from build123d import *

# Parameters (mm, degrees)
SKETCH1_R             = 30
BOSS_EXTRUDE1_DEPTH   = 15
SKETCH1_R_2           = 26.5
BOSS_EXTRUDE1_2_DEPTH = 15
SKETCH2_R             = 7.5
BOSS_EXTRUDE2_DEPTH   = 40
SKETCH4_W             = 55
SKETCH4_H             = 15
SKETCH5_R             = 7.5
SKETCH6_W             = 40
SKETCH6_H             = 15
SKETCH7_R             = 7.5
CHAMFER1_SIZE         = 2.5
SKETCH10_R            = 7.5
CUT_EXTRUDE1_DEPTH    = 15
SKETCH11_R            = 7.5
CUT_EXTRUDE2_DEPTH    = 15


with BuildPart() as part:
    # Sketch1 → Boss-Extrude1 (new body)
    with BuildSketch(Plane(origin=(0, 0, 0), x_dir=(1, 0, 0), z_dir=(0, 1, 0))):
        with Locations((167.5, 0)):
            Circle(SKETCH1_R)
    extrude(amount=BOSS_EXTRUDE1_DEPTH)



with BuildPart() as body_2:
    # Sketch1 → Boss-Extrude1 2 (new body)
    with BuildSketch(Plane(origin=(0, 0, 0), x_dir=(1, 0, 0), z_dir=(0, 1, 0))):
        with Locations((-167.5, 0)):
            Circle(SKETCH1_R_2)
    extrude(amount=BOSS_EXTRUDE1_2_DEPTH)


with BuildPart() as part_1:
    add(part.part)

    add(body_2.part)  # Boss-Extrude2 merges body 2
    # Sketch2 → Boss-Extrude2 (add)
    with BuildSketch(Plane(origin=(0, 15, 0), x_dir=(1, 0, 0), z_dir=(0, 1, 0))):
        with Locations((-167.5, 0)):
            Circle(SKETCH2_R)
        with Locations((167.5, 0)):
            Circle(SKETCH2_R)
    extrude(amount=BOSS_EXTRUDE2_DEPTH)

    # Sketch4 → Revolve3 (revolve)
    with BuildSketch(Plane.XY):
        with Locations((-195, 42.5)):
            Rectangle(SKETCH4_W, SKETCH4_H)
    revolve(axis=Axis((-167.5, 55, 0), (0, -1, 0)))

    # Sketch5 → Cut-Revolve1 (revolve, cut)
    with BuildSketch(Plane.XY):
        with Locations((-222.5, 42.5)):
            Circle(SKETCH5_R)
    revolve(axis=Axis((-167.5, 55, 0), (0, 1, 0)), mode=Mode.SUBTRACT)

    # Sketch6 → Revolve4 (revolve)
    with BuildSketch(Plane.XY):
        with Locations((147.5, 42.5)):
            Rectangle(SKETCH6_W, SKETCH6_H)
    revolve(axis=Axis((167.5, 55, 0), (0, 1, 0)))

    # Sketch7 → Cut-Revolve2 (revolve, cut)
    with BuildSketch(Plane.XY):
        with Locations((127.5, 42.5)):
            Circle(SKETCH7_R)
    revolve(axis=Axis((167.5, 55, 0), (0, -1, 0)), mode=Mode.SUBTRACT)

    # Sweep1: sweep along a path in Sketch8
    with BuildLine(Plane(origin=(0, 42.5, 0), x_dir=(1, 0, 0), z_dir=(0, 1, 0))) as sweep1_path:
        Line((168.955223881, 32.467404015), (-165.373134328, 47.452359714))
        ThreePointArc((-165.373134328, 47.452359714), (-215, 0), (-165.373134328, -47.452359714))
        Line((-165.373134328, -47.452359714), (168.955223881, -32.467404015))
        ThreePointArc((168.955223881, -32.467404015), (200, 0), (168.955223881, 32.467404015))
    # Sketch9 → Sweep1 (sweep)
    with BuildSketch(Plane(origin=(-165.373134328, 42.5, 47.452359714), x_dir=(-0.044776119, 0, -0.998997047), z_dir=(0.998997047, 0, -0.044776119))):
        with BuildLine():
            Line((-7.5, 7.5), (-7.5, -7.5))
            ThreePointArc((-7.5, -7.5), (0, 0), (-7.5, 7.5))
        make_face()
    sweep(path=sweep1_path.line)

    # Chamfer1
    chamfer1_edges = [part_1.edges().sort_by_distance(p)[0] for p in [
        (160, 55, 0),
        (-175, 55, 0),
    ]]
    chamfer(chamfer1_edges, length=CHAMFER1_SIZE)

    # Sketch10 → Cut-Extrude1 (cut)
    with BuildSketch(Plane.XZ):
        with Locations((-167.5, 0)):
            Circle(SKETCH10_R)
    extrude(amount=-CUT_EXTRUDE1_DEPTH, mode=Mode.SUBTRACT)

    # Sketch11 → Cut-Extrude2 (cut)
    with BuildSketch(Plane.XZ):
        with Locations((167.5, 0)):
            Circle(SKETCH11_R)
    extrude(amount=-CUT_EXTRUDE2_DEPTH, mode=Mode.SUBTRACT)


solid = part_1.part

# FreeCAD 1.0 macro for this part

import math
import FreeCAD as App
import Part
import Sketcher

V = App.Vector
Q = App.Units.Quantity


def edges_at(feature, points):
    """Names of the edges that pass closest to the given points."""
    edges = feature.Shape.Edges
    near = lambda p: min(range(len(edges)), key=lambda i: edges[i].distToShape(Part.Vertex(*p))[0])
    return sorted({f"Edge{near(p) + 1}" for p in points})


def add_polygon(sketch, points):
    """Adds a closed chain of lines whose ends are joined by coincident constraints."""
    first, n = sketch.GeometryCount, len(points)
    for a, b in zip(points, points[1:] + points[:1]):
        sketch.addGeometry(Part.LineSegment(App.Vector(*a, 0), App.Vector(*b, 0)), False)
    for i in range(n):
        sketch.addConstraint(Sketcher.Constraint("Coincident", first + i, 2, first + (i + 1) % n, 1))

doc = App.newDocument("Part")
body = doc.addObject("PartDesign::Body", "Body")

# Sketch on XZ plane
sketch1 = doc.addObject("Sketcher::SketchObject", "Sketch")
body.addObject(sketch1)
sketch1.AttachmentSupport = (doc.XZ_Plane, [""])
sketch1.MapMode = "FlatFace"
sketch1.addGeometry(Part.Circle(V(168, 0, 0), V(0, 0, 1), 30), False)
sketch1.addConstraint([
    Sketcher.Constraint("PointOnObject", 0, 3, -1),
    Sketcher.Constraint("Diameter", 0, Q("60 mm")),
    Sketcher.Constraint("DistanceX", -1, 1, 0, 3, Q("167.5 mm")),
])
pad1 = doc.addObject("PartDesign::Pad", "Pad")
body.addObject(pad1)
pad1.Profile = sketch1
pad1.Length = 15
pad1.Reversed = True
body2 = doc.addObject("PartDesign::Body", "Body001")

# Sketch on XZ plane
sketch2 = doc.addObject("Sketcher::SketchObject", "Sketch001")
body2.addObject(sketch2)
sketch2.AttachmentSupport = (doc.getObject("XZ_Plane001"), [""])
sketch2.MapMode = "FlatFace"
sketch2.addGeometry(Part.Circle(V(-168, 0, 0), V(0, 0, 1), 26), False)
sketch2.addConstraint([
    Sketcher.Constraint("PointOnObject", 0, 3, -1),
    Sketcher.Constraint("Diameter", 0, Q("53 mm")),
    Sketcher.Constraint("DistanceX", 0, 3, -1, 1, Q("167.5 mm")),
])
pad2 = doc.addObject("PartDesign::Pad", "Pad001")
body2.addObject(pad2)
pad2.Profile = sketch2
pad2.Length = 15
pad2.Reversed = True
body.AllowCompound = True
doc.recompute()

boolean = doc.addObject("PartDesign::Boolean", "Boolean")
body.addObject(boolean)
boolean.Type = "Fuse"
boolean.addObjects([body2])

# Sketch on XZ plane
sketch3 = doc.addObject("Sketcher::SketchObject", "Sketch002")
body.addObject(sketch3)
sketch3.AttachmentSupport = (doc.XZ_Plane, [""])
sketch3.MapMode = "FlatFace"
sketch3.AttachmentOffset = App.Placement(V(0, 0, -15), App.Rotation())
sketch3.addGeometry([
    Part.Circle(V(-168, 0, 0), V(0, 0, 1), 8),
    Part.Circle(V(168, 0, 0), V(0, 0, 1), 8),
], False)
sketch3.addConstraint([
    Sketcher.Constraint("Equal", 0, 1),
    Sketcher.Constraint("Symmetric", 0, 3, 1, 3, -1, 1),
    Sketcher.Constraint("PointOnObject", 0, 3, -1),
    Sketcher.Constraint("Diameter", 0, Q("15 mm")),
    Sketcher.Constraint("DistanceX", 0, 3, 1, 3, Q("335 mm")),
])
pad3 = doc.addObject("PartDesign::Pad", "Pad002")
body.addObject(pad3)
pad3.Profile = sketch3
pad3.Length = 40
pad3.Reversed = True

# Sketch on XY plane
sketch4 = doc.addObject("Sketcher::SketchObject", "Sketch003")
body.addObject(sketch4)
sketch4.AttachmentSupport = (doc.XY_Plane, [""])
sketch4.MapMode = "FlatFace"
add_polygon(sketch4, [(-222, 50), (-222, 35), (-168, 35), (-168, 50)])  # lines 0-3
sketch4.addGeometry(Part.LineSegment(V(-168, 50, 0), V(-168, 35, 0)), True)  # axis
sketch4.addConstraint([
    Sketcher.Constraint("Vertical", 0),
    Sketcher.Constraint("Horizontal", 1),
    Sketcher.Constraint("Vertical", 2),
    Sketcher.Constraint("Horizontal", 3),
    Sketcher.Constraint("Vertical", 4),
    Sketcher.Constraint("Coincident", 4, 1, 2, 2),
    Sketcher.Constraint("Horizontal", 0, 2, 4, 2),
    Sketcher.Constraint("DistanceX", 1, 1, 1, 2, Q("55 mm")),
    Sketcher.Constraint("DistanceY", 0, 2, 0, 1, Q("15 mm")),
    Sketcher.Constraint("DistanceY", -1, 1, 0, 2, Q("35 mm")),
    Sketcher.Constraint("DistanceX", 0, 2, -1, 1, Q("222.5 mm")),
])
revolution = doc.addObject("PartDesign::Revolution", "Revolution")
body.addObject(revolution)
revolution.Profile = sketch4
revolution.ReferenceAxis = (sketch4, ["Axis0"])
revolution.Angle = 360

# Sketch on XY plane
sketch5 = doc.addObject("Sketcher::SketchObject", "Sketch004")
body.addObject(sketch5)
sketch5.AttachmentSupport = (doc.XY_Plane, [""])
sketch5.MapMode = "FlatFace"
sketch5.addGeometry(Part.Circle(V(-222, 42, 0), V(0, 0, 1), 8), False)
sketch5.addGeometry(Part.LineSegment(V(-168, 42, 0), V(-168, 52, 0)), True)  # axis
sketch5.addConstraint([
    Sketcher.Constraint("Vertical", 1),
    Sketcher.Constraint("Horizontal", 0, 3, 1, 1),
    Sketcher.Constraint("Diameter", 0, Q("15 mm")),
    Sketcher.Constraint("DistanceY", 1, 1, 1, 2, Q("10 mm")),
    Sketcher.Constraint("DistanceX", 0, 3, 1, 1, Q("55 mm")),
    Sketcher.Constraint("DistanceX", 0, 3, -1, 1, Q("222.5 mm")),
    Sketcher.Constraint("DistanceY", -1, 1, 0, 3, Q("42.5 mm")),
])
groove = doc.addObject("PartDesign::Groove", "Groove")
body.addObject(groove)
groove.Profile = sketch5
groove.ReferenceAxis = (sketch5, ["Axis0"])
groove.Angle = 360

# Sketch on XY plane
sketch6 = doc.addObject("Sketcher::SketchObject", "Sketch005")
body.addObject(sketch6)
sketch6.AttachmentSupport = (doc.XY_Plane, [""])
sketch6.MapMode = "FlatFace"
add_polygon(sketch6, [(128, 50), (128, 35), (168, 35), (168, 50)])  # lines 0-3
sketch6.addGeometry(Part.LineSegment(V(168, 35, 0), V(168, 50, 0)), True)  # axis
sketch6.addConstraint([
    Sketcher.Constraint("Vertical", 0),
    Sketcher.Constraint("Horizontal", 1),
    Sketcher.Constraint("Vertical", 2),
    Sketcher.Constraint("Horizontal", 3),
    Sketcher.Constraint("Vertical", 4),
    Sketcher.Constraint("Coincident", 4, 1, 1, 2),
    Sketcher.Constraint("Horizontal", 3, 2, 4, 2),
    Sketcher.Constraint("DistanceX", 1, 1, 1, 2, Q("40 mm")),
    Sketcher.Constraint("DistanceY", 0, 2, 0, 1, Q("15 mm")),
    Sketcher.Constraint("DistanceY", -1, 1, 0, 2, Q("35 mm")),
    Sketcher.Constraint("DistanceX", -1, 1, 0, 2, Q("127.5 mm")),
])
revolution2 = doc.addObject("PartDesign::Revolution", "Revolution001")
body.addObject(revolution2)
revolution2.Profile = sketch6
revolution2.ReferenceAxis = (sketch6, ["Axis0"])
revolution2.Angle = 360

# Sketch on XY plane
sketch7 = doc.addObject("Sketcher::SketchObject", "Sketch006")
body.addObject(sketch7)
sketch7.AttachmentSupport = (doc.XY_Plane, [""])
sketch7.MapMode = "FlatFace"
sketch7.addGeometry(Part.Circle(V(128, 42, 0), V(0, 0, 1), 8), False)
sketch7.addGeometry(Part.LineSegment(V(168, 42, 0), V(168, 32, 0)), True)  # axis
sketch7.addConstraint([
    Sketcher.Constraint("Vertical", 1),
    Sketcher.Constraint("Horizontal", 0, 3, 1, 1),
    Sketcher.Constraint("Diameter", 0, Q("15 mm")),
    Sketcher.Constraint("DistanceY", 1, 2, 1, 1, Q("10 mm")),
    Sketcher.Constraint("DistanceX", 0, 3, 1, 1, Q("40 mm")),
    Sketcher.Constraint("DistanceX", -1, 1, 0, 3, Q("127.5 mm")),
    Sketcher.Constraint("DistanceY", -1, 1, 0, 3, Q("42.5 mm")),
])
groove2 = doc.addObject("PartDesign::Groove", "Groove001")
body.addObject(groove2)
groove2.Profile = sketch7
groove2.ReferenceAxis = (sketch7, ["Axis0"])
groove2.Angle = 360

# Sketch on an angled plane
sketch8 = doc.addObject("Sketcher::SketchObject", "Sketch007")
body.addObject(sketch8)
sketch8.Placement = App.Placement(V(-165.373134, 42.5, 47.45236), App.Rotation(V(-0.044776119, 0, -0.998997047), V(0, 1.000000001, 0), V(0.998997047, 0, -0.044776119), "ZXY"))
sketch8.addGeometry([
    Part.LineSegment(V(-8, 8, 0), V(-8, -8, 0)),
    Part.ArcOfCircle(Part.Circle(V(-8, 0, 0), V(0, 0, 1), 8), math.radians(-90), math.radians(90)),
], False)
sketch8.addConstraint([
    Sketcher.Constraint("Coincident", 0, 1, 1, 2),
    Sketcher.Constraint("Coincident", 1, 1, 0, 2),
    Sketcher.Constraint("Vertical", 0),
    Sketcher.Constraint("PointOnObject", 1, 3, -1),
    Sketcher.Constraint("Vertical", 1, 3, 0, 1),
    Sketcher.Constraint("Radius", 1, Q("7.5 mm")),
    Sketcher.Constraint("DistanceX", 1, 3, -1, 1, Q("7.5 mm")),
])

# Sketch on XZ plane
sketch9 = doc.addObject("Sketcher::SketchObject", "Sketch008")
body.addObject(sketch9)
sketch9.AttachmentSupport = (doc.XZ_Plane, [""])
sketch9.MapMode = "FlatFace"
sketch9.AttachmentOffset = App.Placement(V(0, 0, -42.5), App.Rotation())
sketch9.addGeometry([
    Part.LineSegment(V(169, -32, 0), V(-165, -47, 0)),
    Part.ArcOfCircle(Part.Circle(V(-168, 0, 0), V(0, 0, 1), 48), math.radians(87), math.radians(273)),
    Part.LineSegment(V(-165, 47, 0), V(169, 32, 0)),
    Part.ArcOfCircle(Part.Circle(V(168, 0, 0), V(0, 0, 1), 32), math.radians(-87), math.radians(87)),
], False)
sketch9.addConstraint([
    Sketcher.Constraint("Tangent", 0, 2, 1, 2),
    Sketcher.Constraint("Tangent", 1, 1, 2, 1),
    Sketcher.Constraint("Tangent", 2, 2, 3, 2),
    Sketcher.Constraint("Tangent", 3, 1, 0, 1),
    Sketcher.Constraint("Symmetric", 1, 3, 3, 3, -1, 1),
    Sketcher.Constraint("PointOnObject", 1, 3, -1),
    Sketcher.Constraint("Radius", 1, Q("47.5 mm")),
    Sketcher.Constraint("Radius", 3, Q("32.5 mm")),
    Sketcher.Constraint("DistanceX", 1, 3, 3, 3, Q("335 mm")),
])
doc.recompute()

additivepipe = doc.addObject("PartDesign::AdditivePipe", "AdditivePipe")
body.addObject(additivepipe)
additivepipe.Profile = sketch8
additivepipe.Spine = (sketch9, ["Edge1", "Edge2", "Edge3", "Edge4"])
doc.recompute()

chamfer = doc.addObject("PartDesign::Chamfer", "Chamfer")
body.addObject(chamfer)
chamfer.Base = (additivepipe, edges_at(additivepipe, [(160, 55, 0), (-175, 55, 0)]))
chamfer.Size = 2.5

# Sketch on XZ plane
sketch10 = doc.addObject("Sketcher::SketchObject", "Sketch009")
body.addObject(sketch10)
sketch10.AttachmentSupport = (doc.XZ_Plane, [""])
sketch10.MapMode = "FlatFace"
sketch10.addGeometry(Part.Circle(V(-168, 0, 0), V(0, 0, 1), 8), False)
sketch10.addConstraint([
    Sketcher.Constraint("PointOnObject", 0, 3, -1),
    Sketcher.Constraint("Diameter", 0, Q("15 mm")),
    Sketcher.Constraint("DistanceX", 0, 3, -1, 1, Q("167.5 mm")),
])
pocket1 = doc.addObject("PartDesign::Pocket", "Pocket")
body.addObject(pocket1)
pocket1.Profile = sketch10
pocket1.Length = 15

# Sketch on XZ plane
sketch11 = doc.addObject("Sketcher::SketchObject", "Sketch010")
body.addObject(sketch11)
sketch11.AttachmentSupport = (doc.XZ_Plane, [""])
sketch11.MapMode = "FlatFace"
sketch11.addGeometry(Part.Circle(V(168, 0, 0), V(0, 0, 1), 8), False)
sketch11.addConstraint([
    Sketcher.Constraint("PointOnObject", 0, 3, -1),
    Sketcher.Constraint("Diameter", 0, Q("15 mm")),
    Sketcher.Constraint("DistanceX", -1, 1, 0, 3, Q("167.5 mm")),
])
pocket2 = doc.addObject("PartDesign::Pocket", "Pocket001")
body.addObject(pocket2)
pocket2.Profile = sketch11
pocket2.Length = 15

doc.recompute()
